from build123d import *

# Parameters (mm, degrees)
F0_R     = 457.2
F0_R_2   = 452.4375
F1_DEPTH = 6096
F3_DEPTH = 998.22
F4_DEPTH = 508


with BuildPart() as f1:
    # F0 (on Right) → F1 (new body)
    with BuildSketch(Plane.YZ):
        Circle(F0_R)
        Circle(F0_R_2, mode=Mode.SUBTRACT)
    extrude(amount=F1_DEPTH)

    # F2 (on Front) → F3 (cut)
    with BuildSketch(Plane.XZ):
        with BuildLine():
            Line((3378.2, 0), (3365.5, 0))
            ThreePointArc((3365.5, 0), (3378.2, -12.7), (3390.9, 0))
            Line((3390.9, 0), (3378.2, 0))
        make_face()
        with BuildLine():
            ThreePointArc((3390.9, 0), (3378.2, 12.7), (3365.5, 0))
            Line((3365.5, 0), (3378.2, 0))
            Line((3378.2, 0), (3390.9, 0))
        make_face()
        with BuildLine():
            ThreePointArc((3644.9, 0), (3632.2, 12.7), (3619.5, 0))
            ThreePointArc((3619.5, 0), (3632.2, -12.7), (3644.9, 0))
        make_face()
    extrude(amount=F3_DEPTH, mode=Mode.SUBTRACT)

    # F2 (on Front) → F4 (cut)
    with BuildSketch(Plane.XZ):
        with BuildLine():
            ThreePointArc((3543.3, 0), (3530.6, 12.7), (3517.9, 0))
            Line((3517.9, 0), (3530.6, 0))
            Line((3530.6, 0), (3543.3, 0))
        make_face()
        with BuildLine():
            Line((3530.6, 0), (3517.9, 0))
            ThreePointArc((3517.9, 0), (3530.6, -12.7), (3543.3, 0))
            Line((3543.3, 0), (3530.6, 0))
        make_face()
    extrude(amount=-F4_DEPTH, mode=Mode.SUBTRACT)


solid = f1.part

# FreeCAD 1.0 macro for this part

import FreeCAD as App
import Part
import Sketcher
Q = App.Units.Quantity

doc = App.newDocument("Part")
body = doc.addObject("PartDesign::Body", "Body")

# Sketch on YZ plane
sketch1 = body.newObject("Sketcher::SketchObject", "Sketch")
sketch1.AttachmentSupport = (doc.getObject("YZ_Plane"), [""])
sketch1.MapMode = "FlatFace"
sketch1.addGeometry(Part.Circle(App.Vector(0, 0, 0), App.Vector(0, 0, 1), 457), False)
sketch1.addGeometry(Part.Circle(App.Vector(0, 0, 0), App.Vector(0, 0, 1), 452), False)
sketch1.addConstraint(Sketcher.Constraint("Coincident", 0, 3, -1, 1))
sketch1.addConstraint(Sketcher.Constraint("Coincident", 1, 3, -1, 1))
sketch1.addConstraint(Sketcher.Constraint("Diameter", 0, Q("36 in")))
sketch1.addConstraint(Sketcher.Constraint("Diameter", 1, Q("35.625 in")))
pad1 = body.newObject("PartDesign::Pad", "Pad")
pad1.Profile = sketch1
pad1.Length = Q("240 in")

# Sketch on XZ plane
sketch2 = body.newObject("Sketcher::SketchObject", "Sketch001")
sketch2.AttachmentSupport = (doc.getObject("XZ_Plane"), [""])
sketch2.MapMode = "FlatFace"
sketch2.addGeometry(Part.Circle(App.Vector(3378, 0, 0), App.Vector(0, 0, 1), 13), False)
sketch2.addGeometry(Part.Circle(App.Vector(3632, 0, 0), App.Vector(0, 0, 1), 13), False)
sketch2.addConstraint(Sketcher.Constraint("Equal", 0, 1))
sketch2.addConstraint(Sketcher.Constraint("PointOnObject", 0, 3, -1))
sketch2.addConstraint(Sketcher.Constraint("PointOnObject", 1, 3, -1))
sketch2.addConstraint(Sketcher.Constraint("Diameter", 0, Q("1 in")))
sketch2.addConstraint(Sketcher.Constraint("DistanceX", -1, 1, 0, 3, Q("133 in")))
sketch2.addConstraint(Sketcher.Constraint("DistanceX", -1, 1, 1, 3, Q("143 in")))
pocket1 = body.newObject("PartDesign::Pocket", "Pocket")
pocket1.Profile = sketch2
pocket1.Length = Q("39.3 in")
pocket1.Reversed = True

# Sketch on XZ plane
sketch3 = body.newObject("Sketcher::SketchObject", "Sketch002")
sketch3.AttachmentSupport = (doc.getObject("XZ_Plane"), [""])
sketch3.MapMode = "FlatFace"
sketch3.addGeometry(Part.Circle(App.Vector(3531, 0, 0), App.Vector(0, 0, 1), 13), False)
sketch3.addConstraint(Sketcher.Constraint("PointOnObject", 0, 3, -1))
sketch3.addConstraint(Sketcher.Constraint("Diameter", 0, Q("1 in")))
sketch3.addConstraint(Sketcher.Constraint("DistanceX", -1, 1, 0, 3, Q("139 in")))
pocket2 = body.newObject("PartDesign::Pocket", "Pocket001")
pocket2.Profile = sketch3
pocket2.Length = Q("20 in")

doc.recompute()
